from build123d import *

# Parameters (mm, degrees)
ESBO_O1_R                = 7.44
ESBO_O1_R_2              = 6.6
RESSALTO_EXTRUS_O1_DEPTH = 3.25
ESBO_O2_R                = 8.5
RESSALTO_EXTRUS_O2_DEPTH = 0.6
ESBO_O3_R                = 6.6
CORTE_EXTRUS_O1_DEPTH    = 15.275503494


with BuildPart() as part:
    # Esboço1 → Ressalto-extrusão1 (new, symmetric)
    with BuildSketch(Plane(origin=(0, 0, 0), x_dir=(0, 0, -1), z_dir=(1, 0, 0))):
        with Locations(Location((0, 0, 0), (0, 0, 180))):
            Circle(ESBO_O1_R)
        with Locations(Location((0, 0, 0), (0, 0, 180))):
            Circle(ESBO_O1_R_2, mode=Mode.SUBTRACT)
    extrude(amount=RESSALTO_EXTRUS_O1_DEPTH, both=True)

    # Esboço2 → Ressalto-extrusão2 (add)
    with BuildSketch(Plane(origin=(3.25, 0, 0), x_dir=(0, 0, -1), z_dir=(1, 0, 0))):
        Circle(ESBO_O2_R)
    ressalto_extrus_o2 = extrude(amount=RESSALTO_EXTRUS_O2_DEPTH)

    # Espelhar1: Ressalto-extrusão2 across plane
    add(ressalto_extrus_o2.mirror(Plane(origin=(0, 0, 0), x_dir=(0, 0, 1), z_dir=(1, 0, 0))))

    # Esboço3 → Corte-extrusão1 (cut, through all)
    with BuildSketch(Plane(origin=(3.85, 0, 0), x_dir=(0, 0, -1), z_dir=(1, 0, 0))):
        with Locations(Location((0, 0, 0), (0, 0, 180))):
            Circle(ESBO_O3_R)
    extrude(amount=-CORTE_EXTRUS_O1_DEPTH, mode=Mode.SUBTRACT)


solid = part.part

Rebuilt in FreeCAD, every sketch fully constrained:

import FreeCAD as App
import Part
import Sketcher
from FreeCAD import Vector

doc = App.newDocument("Part")
params = doc.addObject("Spreadsheet::Sheet", "Params")
for row, (alias, value) in enumerate([
    ("sketch1_diameter", "13.2 mm"),
    ("sketch1_diameter2", "14.88 mm"),
    ("pad1_length", "6.5 mm"),
    ("sketch2_diameter", "17 mm"),
    ("pad2_length", "0.6 mm"),
    ("sketch3_diameter", "13.2 mm"),
], start=1):
    params.set(f"A{row}", alias)
    params.set(f"B{row}", "=" + value)
    params.setAlias(f"B{row}", alias)

body = doc.addObject("PartDesign::Body", "Body")

# Sketch on YZ plane
sketch1 = doc.addObject("Sketcher::SketchObject", "Sketch")
body.addObject(sketch1)
sketch1.AttachmentSupport = (doc.YZ_Plane, [""])
sketch1.MapMode = "FlatFace"
sketch1.addGeometry([
    Part.Circle(Vector(0, 0, 0), Vector(0, 0, 1), 7.44),
    Part.Circle(Vector(0, 0, 0), Vector(0, 0, 1), 6.6),
], False)
sketch1.addConstraint([
    Sketcher.Constraint("Coincident", 0, 3, -1, 1),
    Sketcher.Constraint("Coincident", 1, 3, -1, 1),
    Sketcher.Constraint("Diameter", 1, 13.2),
    Sketcher.Constraint("Diameter", 0, 14.88),
])
sketch1.setExpression("Constraints[2]", "Params.sketch1_diameter")
sketch1.setExpression("Constraints[3]", "Params.sketch1_diameter2")
pad1 = doc.addObject("PartDesign::Pad", "Pad")
body.addObject(pad1)
pad1.Profile = sketch1
pad1.setExpression("Length", "Params.pad1_length")
pad1.Midplane = True

# Sketch on YZ plane
sketch2 = doc.addObject("Sketcher::SketchObject", "Sketch001")
body.addObject(sketch2)
sketch2.AttachmentSupport = (doc.YZ_Plane, [""])
sketch2.MapMode = "FlatFace"
sketch2.AttachmentOffset = App.Placement(Vector(0, 0, 3.25), App.Rotation())
sketch2.addGeometry(Part.Circle(Vector(0, 0, 0), Vector(0, 0, 1), 8.5), False)
sketch2.addConstraint([
    Sketcher.Constraint("Coincident", 0, 3, -1, 1),
    Sketcher.Constraint("Diameter", 0, 17.0),
])
sketch2.setExpression("Constraints[1]", "Params.sketch2_diameter")
pad2 = doc.addObject("PartDesign::Pad", "Pad001")
body.addObject(pad2)
pad2.Profile = sketch2
pad2.setExpression("Length", "Params.pad2_length")
doc.recompute()

mirrored = doc.addObject("PartDesign::Mirrored", "Mirrored")
body.addObject(mirrored)
mirrored.Originals = [pad2]
mirrored.MirrorPlane = (doc.YZ_Plane, [""])
body.Tip = mirrored

# Sketch on YZ plane
sketch3 = doc.addObject("Sketcher::SketchObject", "Sketch002")
body.addObject(sketch3)
sketch3.AttachmentSupport = (doc.YZ_Plane, [""])
sketch3.MapMode = "FlatFace"
sketch3.AttachmentOffset = App.Placement(Vector(0, 0, 3.85), App.Rotation())
sketch3.addGeometry(Part.Circle(Vector(0, 0, 0), Vector(0, 0, 1), 6.6), False)
sketch3.addConstraint([
    Sketcher.Constraint("Coincident", 0, 3, -1, 1),
    Sketcher.Constraint("Diameter", 0, 13.2),
])
sketch3.setExpression("Constraints[1]", "Params.sketch3_diameter")
pocket1 = doc.addObject("PartDesign::Pocket", "Pocket")
body.addObject(pocket1)
pocket1.Profile = sketch3
pocket1.Type = "ThroughAll"

doc.recompute()
